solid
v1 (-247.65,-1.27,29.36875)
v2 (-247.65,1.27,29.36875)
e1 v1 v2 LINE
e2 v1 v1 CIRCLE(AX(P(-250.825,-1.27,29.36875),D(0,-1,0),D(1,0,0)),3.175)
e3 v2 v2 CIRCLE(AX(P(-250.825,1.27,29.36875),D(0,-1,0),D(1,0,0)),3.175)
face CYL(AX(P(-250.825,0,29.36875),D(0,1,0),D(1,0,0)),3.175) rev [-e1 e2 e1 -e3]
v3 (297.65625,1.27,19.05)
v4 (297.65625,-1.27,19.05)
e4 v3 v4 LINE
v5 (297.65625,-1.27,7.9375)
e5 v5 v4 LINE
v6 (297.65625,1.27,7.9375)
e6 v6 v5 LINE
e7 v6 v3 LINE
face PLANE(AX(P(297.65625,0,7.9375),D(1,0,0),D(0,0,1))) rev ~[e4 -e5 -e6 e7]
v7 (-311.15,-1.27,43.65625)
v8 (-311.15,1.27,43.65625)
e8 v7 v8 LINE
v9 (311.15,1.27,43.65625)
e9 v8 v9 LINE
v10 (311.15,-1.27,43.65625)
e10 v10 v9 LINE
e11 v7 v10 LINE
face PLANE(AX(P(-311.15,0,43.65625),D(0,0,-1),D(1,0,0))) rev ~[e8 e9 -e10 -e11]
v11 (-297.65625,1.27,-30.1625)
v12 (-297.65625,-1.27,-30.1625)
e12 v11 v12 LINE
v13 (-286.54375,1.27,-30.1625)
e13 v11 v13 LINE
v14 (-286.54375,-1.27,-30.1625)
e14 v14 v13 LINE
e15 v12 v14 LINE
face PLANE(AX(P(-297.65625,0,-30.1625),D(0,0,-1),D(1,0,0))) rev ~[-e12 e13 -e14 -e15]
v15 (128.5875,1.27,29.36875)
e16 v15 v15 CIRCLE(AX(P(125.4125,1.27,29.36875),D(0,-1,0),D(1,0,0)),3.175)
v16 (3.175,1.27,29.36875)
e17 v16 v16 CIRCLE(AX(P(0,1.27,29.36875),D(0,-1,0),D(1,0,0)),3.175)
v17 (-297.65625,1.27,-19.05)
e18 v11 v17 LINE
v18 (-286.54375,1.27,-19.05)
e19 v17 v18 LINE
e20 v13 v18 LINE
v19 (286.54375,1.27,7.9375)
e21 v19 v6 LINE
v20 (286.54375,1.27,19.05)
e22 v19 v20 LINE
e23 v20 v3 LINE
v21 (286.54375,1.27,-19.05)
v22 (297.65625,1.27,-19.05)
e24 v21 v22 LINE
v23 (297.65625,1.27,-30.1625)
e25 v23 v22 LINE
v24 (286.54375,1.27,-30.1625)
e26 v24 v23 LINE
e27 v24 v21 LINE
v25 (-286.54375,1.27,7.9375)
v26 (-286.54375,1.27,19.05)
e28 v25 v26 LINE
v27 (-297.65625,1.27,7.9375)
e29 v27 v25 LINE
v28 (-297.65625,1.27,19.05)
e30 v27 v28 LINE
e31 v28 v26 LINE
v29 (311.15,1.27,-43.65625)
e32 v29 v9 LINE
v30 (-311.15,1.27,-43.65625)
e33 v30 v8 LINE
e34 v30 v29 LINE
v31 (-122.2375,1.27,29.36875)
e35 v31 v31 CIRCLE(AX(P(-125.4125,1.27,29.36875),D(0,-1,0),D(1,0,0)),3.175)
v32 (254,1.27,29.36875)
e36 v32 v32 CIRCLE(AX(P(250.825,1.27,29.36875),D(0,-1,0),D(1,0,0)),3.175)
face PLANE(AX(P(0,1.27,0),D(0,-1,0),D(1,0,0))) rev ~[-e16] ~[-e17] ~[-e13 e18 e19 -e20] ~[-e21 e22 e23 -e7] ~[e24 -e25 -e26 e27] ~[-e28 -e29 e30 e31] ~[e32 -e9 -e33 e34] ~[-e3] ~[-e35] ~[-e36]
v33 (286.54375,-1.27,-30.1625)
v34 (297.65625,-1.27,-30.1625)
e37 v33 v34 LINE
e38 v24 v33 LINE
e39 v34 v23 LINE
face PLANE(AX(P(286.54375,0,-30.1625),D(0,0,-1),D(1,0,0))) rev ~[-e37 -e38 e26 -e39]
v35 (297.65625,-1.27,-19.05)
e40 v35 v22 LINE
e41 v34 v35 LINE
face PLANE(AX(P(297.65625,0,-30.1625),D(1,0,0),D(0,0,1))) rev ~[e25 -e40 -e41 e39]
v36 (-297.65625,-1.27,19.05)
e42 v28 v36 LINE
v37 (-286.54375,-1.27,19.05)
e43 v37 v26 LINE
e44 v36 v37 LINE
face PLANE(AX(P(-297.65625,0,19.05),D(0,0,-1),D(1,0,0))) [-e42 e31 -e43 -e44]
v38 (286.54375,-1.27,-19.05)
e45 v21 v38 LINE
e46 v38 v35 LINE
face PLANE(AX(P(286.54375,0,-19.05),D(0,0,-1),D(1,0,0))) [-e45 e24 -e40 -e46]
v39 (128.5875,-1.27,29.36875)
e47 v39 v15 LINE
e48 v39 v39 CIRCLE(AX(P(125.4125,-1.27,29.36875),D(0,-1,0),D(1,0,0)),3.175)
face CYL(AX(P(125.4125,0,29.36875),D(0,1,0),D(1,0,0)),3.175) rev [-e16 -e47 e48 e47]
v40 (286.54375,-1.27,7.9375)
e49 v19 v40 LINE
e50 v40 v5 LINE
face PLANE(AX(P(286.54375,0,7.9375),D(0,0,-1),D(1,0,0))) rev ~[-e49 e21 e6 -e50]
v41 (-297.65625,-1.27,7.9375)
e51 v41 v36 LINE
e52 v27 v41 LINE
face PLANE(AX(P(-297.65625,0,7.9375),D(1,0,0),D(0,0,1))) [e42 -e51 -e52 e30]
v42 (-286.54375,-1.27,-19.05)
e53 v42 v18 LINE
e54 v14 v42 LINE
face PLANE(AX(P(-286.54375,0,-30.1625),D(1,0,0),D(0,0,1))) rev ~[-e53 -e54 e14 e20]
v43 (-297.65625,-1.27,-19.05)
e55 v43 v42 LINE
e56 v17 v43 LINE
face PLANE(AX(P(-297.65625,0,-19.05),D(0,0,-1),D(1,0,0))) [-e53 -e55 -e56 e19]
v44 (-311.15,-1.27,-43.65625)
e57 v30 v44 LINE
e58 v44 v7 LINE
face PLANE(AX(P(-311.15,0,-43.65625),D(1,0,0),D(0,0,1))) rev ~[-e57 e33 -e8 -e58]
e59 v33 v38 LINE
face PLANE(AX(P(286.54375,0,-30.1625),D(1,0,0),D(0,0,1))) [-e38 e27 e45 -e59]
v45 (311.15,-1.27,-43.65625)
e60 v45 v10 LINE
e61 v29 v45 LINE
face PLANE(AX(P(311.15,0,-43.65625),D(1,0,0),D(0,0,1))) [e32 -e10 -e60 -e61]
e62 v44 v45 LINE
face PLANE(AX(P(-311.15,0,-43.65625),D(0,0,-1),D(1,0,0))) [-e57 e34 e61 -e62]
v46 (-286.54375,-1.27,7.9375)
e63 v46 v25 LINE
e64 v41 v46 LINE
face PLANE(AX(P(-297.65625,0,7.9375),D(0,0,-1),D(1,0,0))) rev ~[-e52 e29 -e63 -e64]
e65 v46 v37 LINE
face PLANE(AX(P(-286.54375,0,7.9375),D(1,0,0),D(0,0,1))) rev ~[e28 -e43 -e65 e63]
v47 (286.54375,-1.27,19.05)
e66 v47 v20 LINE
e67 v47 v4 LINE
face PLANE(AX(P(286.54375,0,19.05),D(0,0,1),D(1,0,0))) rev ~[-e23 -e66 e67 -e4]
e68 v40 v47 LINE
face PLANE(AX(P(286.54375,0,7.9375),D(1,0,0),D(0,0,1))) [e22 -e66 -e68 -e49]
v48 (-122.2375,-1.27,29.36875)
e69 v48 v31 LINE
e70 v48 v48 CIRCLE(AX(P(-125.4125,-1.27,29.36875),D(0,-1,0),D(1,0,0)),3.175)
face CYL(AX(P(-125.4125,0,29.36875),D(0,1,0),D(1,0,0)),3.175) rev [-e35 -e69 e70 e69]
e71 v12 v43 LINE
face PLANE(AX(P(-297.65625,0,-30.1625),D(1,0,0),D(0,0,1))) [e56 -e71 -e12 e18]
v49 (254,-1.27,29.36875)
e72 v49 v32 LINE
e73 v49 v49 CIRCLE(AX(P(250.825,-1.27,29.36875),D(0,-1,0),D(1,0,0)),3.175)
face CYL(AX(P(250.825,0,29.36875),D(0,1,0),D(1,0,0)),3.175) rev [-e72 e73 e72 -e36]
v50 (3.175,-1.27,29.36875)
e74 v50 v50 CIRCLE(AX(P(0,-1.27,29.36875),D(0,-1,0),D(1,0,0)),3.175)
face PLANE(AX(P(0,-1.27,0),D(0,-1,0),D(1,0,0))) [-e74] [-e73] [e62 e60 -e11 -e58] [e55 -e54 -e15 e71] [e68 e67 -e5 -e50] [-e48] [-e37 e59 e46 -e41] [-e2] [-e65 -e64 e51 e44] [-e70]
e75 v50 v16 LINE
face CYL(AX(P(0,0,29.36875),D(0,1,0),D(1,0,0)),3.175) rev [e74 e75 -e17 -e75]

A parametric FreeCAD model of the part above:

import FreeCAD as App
import Part
import Sketcher
from FreeCAD import Vector
Q = App.Units.Quantity

doc = App.newDocument("Part")
body = doc.addObject("PartDesign::Body", "Body")

sketch1 = body.newObject("Sketcher::SketchObject", "Sketch")
sketch1.AttachmentSupport = (doc.getObject("XZ_Plane"), [""])
sketch1.MapMode = "FlatFace"
sketch1.addGeometry([
    Part.LineSegment(Vector(-311.15, 43.65625, 0), Vector(-311.15, -43.65625, 0)),
    Part.LineSegment(Vector(-311.15, -43.65625, 0), Vector(311.15, -43.65625, 0)),
    Part.LineSegment(Vector(311.15, -43.65625, 0), Vector(311.15, 43.65625, 0)),
    Part.LineSegment(Vector(311.15, 43.65625, 0), Vector(-311.15, 43.65625, 0)),
    Part.LineSegment(Vector(-286.54375, -30.1625, 0), Vector(-297.65625, -30.1625, 0)),
    Part.LineSegment(Vector(-297.65625, -30.1625, 0), Vector(-297.65625, -19.05, 0)),
    Part.LineSegment(Vector(-297.65625, -19.05, 0), Vector(-286.54375, -19.05, 0)),
    Part.LineSegment(Vector(-286.54375, -19.05, 0), Vector(-286.54375, -30.1625, 0)),
    Part.LineSegment(Vector(297.65625, -30.1625, 0), Vector(286.54375, -30.1625, 0)),
    Part.LineSegment(Vector(286.54375, -30.1625, 0), Vector(286.54375, -19.05, 0)),
    Part.LineSegment(Vector(286.54375, -19.05, 0), Vector(297.65625, -19.05, 0)),
    Part.LineSegment(Vector(297.65625, -19.05, 0), Vector(297.65625, -30.1625, 0)),
    Part.LineSegment(Vector(-286.54375, 7.9375, 0), Vector(-297.65625, 7.9375, 0)),
    Part.LineSegment(Vector(-297.65625, 7.9375, 0), Vector(-297.65625, 19.05, 0)),
    Part.LineSegment(Vector(-297.65625, 19.05, 0), Vector(-286.54375, 19.05, 0)),
    Part.LineSegment(Vector(-286.54375, 19.05, 0), Vector(-286.54375, 7.9375, 0)),
    Part.Circle(Vector(-250.825, 29.36875, 0), Vector(0, 0, 1), 3.175),
    Part.Circle(Vector(-125.4125, 29.36875, 0), Vector(0, 0, 1), 3.175),
    Part.LineSegment(Vector(297.65625, 7.9375, 0), Vector(286.54375, 7.9375, 0)),
    Part.LineSegment(Vector(286.54375, 7.9375, 0), Vector(286.54375, 19.05, 0)),
    Part.LineSegment(Vector(286.54375, 19.05, 0), Vector(297.65625, 19.05, 0)),
    Part.LineSegment(Vector(297.65625, 19.05, 0), Vector(297.65625, 7.9375, 0)),
    Part.Circle(Vector(0, 29.36875, 0), Vector(0, 0, 1), 3.175),
    Part.Circle(Vector(125.4125, 29.36875, 0), Vector(0, 0, 1), 3.175),
    Part.Circle(Vector(250.825, 29.36875, 0), Vector(0, 0, 1), 3.175),
], False)
sketch1.addConstraint([
    Sketcher.Constraint("Coincident", 0, 2, 1, 1),
    Sketcher.Constraint("Coincident", 1, 2, 2, 1),
    Sketcher.Constraint("Coincident", 2, 2, 3, 1),
    Sketcher.Constraint("Coincident", 3, 2, 0, 1),
    Sketcher.Constraint("Coincident", 4, 2, 5, 1),
    Sketcher.Constraint("Coincident", 5, 2, 6, 1),
    Sketcher.Constraint("Coincident", 6, 2, 7, 1),
    Sketcher.Constraint("Coincident", 7, 2, 4, 1),
    Sketcher.Constraint("Coincident", 8, 2, 9, 1),
    Sketcher.Constraint("Coincident", 9, 2, 10, 1),
    Sketcher.Constraint("Coincident", 10, 2, 11, 1),
    Sketcher.Constraint("Coincident", 11, 2, 8, 1),
    Sketcher.Constraint("Coincident", 12, 2, 13, 1),
    Sketcher.Constraint("Coincident", 13, 2, 14, 1),
    Sketcher.Constraint("Coincident", 14, 2, 15, 1),
    Sketcher.Constraint("Coincident", 15, 2, 12, 1),
    Sketcher.Constraint("Coincident", 18, 2, 19, 1),
    Sketcher.Constraint("Coincident", 19, 2, 20, 1),
    Sketcher.Constraint("Coincident", 20, 2, 21, 1),
    Sketcher.Constraint("Coincident", 21, 2, 18, 1),
    Sketcher.Constraint("Vertical", 0),
    Sketcher.Constraint("Horizontal", 1),
    Sketcher.Constraint("Vertical", 2),
    Sketcher.Constraint("Horizontal", 3),
    Sketcher.Constraint("Horizontal", 4),
    Sketcher.Constraint("Vertical", 5),
    Sketcher.Constraint("Horizontal", 6),
    Sketcher.Constraint("Vertical", 7),
    Sketcher.Constraint("Horizontal", 8),
    Sketcher.Constraint("Vertical", 9),
    Sketcher.Constraint("Horizontal", 10),
    Sketcher.Constraint("Vertical", 11),
    Sketcher.Constraint("Horizontal", 12),
    Sketcher.Constraint("Vertical", 13),
    Sketcher.Constraint("Horizontal", 14),
    Sketcher.Constraint("Vertical", 15),
    Sketcher.Constraint("Horizontal", 18),
    Sketcher.Constraint("Vertical", 19),
    Sketcher.Constraint("Horizontal", 20),
    Sketcher.Constraint("Vertical", 21),
    Sketcher.Constraint("Equal", 16, 17),
    Sketcher.Constraint("Equal", 17, 22),
    Sketcher.Constraint("Equal", 22, 23),
    Sketcher.Constraint("Equal", 23, 24),
    Sketcher.Constraint("Symmetric", 0, 2, 2, 2, -1, 1),
    Sketcher.Constraint("Symmetric", 10, 2, 13, 2, -1, 1),
    Sketcher.Constraint("Symmetric", 6, 2, 19, 2, -1, 1),
    Sketcher.Constraint("Symmetric", 17, 3, 23, 3, -2),
    Sketcher.Constraint("Symmetric", 16, 3, 24, 3, -2),
    Sketcher.Constraint("Symmetric", 7, 2, 8, 2, -2),
    Sketcher.Constraint("Symmetric", 5, 2, 10, 2, -2),
    Sketcher.Constraint("Symmetric", 15, 2, 18, 2, -2),
    Sketcher.Constraint("PointOnObject", 22, 3, -2),
    Sketcher.Constraint("Horizontal", 16, 3, 17, 3),
    Sketcher.Constraint("Horizontal", 17, 3, 22, 3),
    Sketcher.Constraint("Vertical", 11, 2, 20, 2),
    Sketcher.Constraint("Equal", 20, 5),
    Sketcher.Constraint("Equal", 11, 13),
    Sketcher.Constraint("Diameter", 16, Q("0.25 in")),
    Sketcher.Constraint("DistanceX", 1, 1, 1, 2, Q("24.5 in")),
    Sketcher.Constraint("DistanceY", 4, 2, 12, 2, Q("1.5 in")),
    Sketcher.Constraint("DistanceX", 4, 2, 4, 1, Q("0.4375 in")),
    Sketcher.Constraint("DistanceY", 0, 2, 0, 1, Q("3.4375 in")),
    Sketcher.Constraint("DistanceX", 16, 3, 24, 3, Q("19.75 in")),
    Sketcher.Constraint("DistanceY", -1, 1, 16, 3, Q("1.15625 in")),
    Sketcher.Constraint("DistanceX", 17, 3, -1, 1, Q("4.9375 in")),
    Sketcher.Constraint("DistanceX", 4, 2, -1, 1, Q("11.71875 in")),
])
pad1 = body.newObject("PartDesign::Pad", "Pad")
pad1.Profile = sketch1
pad1.Length = Q("0.1 in")
pad1.Midplane = True

doc.recompute()
